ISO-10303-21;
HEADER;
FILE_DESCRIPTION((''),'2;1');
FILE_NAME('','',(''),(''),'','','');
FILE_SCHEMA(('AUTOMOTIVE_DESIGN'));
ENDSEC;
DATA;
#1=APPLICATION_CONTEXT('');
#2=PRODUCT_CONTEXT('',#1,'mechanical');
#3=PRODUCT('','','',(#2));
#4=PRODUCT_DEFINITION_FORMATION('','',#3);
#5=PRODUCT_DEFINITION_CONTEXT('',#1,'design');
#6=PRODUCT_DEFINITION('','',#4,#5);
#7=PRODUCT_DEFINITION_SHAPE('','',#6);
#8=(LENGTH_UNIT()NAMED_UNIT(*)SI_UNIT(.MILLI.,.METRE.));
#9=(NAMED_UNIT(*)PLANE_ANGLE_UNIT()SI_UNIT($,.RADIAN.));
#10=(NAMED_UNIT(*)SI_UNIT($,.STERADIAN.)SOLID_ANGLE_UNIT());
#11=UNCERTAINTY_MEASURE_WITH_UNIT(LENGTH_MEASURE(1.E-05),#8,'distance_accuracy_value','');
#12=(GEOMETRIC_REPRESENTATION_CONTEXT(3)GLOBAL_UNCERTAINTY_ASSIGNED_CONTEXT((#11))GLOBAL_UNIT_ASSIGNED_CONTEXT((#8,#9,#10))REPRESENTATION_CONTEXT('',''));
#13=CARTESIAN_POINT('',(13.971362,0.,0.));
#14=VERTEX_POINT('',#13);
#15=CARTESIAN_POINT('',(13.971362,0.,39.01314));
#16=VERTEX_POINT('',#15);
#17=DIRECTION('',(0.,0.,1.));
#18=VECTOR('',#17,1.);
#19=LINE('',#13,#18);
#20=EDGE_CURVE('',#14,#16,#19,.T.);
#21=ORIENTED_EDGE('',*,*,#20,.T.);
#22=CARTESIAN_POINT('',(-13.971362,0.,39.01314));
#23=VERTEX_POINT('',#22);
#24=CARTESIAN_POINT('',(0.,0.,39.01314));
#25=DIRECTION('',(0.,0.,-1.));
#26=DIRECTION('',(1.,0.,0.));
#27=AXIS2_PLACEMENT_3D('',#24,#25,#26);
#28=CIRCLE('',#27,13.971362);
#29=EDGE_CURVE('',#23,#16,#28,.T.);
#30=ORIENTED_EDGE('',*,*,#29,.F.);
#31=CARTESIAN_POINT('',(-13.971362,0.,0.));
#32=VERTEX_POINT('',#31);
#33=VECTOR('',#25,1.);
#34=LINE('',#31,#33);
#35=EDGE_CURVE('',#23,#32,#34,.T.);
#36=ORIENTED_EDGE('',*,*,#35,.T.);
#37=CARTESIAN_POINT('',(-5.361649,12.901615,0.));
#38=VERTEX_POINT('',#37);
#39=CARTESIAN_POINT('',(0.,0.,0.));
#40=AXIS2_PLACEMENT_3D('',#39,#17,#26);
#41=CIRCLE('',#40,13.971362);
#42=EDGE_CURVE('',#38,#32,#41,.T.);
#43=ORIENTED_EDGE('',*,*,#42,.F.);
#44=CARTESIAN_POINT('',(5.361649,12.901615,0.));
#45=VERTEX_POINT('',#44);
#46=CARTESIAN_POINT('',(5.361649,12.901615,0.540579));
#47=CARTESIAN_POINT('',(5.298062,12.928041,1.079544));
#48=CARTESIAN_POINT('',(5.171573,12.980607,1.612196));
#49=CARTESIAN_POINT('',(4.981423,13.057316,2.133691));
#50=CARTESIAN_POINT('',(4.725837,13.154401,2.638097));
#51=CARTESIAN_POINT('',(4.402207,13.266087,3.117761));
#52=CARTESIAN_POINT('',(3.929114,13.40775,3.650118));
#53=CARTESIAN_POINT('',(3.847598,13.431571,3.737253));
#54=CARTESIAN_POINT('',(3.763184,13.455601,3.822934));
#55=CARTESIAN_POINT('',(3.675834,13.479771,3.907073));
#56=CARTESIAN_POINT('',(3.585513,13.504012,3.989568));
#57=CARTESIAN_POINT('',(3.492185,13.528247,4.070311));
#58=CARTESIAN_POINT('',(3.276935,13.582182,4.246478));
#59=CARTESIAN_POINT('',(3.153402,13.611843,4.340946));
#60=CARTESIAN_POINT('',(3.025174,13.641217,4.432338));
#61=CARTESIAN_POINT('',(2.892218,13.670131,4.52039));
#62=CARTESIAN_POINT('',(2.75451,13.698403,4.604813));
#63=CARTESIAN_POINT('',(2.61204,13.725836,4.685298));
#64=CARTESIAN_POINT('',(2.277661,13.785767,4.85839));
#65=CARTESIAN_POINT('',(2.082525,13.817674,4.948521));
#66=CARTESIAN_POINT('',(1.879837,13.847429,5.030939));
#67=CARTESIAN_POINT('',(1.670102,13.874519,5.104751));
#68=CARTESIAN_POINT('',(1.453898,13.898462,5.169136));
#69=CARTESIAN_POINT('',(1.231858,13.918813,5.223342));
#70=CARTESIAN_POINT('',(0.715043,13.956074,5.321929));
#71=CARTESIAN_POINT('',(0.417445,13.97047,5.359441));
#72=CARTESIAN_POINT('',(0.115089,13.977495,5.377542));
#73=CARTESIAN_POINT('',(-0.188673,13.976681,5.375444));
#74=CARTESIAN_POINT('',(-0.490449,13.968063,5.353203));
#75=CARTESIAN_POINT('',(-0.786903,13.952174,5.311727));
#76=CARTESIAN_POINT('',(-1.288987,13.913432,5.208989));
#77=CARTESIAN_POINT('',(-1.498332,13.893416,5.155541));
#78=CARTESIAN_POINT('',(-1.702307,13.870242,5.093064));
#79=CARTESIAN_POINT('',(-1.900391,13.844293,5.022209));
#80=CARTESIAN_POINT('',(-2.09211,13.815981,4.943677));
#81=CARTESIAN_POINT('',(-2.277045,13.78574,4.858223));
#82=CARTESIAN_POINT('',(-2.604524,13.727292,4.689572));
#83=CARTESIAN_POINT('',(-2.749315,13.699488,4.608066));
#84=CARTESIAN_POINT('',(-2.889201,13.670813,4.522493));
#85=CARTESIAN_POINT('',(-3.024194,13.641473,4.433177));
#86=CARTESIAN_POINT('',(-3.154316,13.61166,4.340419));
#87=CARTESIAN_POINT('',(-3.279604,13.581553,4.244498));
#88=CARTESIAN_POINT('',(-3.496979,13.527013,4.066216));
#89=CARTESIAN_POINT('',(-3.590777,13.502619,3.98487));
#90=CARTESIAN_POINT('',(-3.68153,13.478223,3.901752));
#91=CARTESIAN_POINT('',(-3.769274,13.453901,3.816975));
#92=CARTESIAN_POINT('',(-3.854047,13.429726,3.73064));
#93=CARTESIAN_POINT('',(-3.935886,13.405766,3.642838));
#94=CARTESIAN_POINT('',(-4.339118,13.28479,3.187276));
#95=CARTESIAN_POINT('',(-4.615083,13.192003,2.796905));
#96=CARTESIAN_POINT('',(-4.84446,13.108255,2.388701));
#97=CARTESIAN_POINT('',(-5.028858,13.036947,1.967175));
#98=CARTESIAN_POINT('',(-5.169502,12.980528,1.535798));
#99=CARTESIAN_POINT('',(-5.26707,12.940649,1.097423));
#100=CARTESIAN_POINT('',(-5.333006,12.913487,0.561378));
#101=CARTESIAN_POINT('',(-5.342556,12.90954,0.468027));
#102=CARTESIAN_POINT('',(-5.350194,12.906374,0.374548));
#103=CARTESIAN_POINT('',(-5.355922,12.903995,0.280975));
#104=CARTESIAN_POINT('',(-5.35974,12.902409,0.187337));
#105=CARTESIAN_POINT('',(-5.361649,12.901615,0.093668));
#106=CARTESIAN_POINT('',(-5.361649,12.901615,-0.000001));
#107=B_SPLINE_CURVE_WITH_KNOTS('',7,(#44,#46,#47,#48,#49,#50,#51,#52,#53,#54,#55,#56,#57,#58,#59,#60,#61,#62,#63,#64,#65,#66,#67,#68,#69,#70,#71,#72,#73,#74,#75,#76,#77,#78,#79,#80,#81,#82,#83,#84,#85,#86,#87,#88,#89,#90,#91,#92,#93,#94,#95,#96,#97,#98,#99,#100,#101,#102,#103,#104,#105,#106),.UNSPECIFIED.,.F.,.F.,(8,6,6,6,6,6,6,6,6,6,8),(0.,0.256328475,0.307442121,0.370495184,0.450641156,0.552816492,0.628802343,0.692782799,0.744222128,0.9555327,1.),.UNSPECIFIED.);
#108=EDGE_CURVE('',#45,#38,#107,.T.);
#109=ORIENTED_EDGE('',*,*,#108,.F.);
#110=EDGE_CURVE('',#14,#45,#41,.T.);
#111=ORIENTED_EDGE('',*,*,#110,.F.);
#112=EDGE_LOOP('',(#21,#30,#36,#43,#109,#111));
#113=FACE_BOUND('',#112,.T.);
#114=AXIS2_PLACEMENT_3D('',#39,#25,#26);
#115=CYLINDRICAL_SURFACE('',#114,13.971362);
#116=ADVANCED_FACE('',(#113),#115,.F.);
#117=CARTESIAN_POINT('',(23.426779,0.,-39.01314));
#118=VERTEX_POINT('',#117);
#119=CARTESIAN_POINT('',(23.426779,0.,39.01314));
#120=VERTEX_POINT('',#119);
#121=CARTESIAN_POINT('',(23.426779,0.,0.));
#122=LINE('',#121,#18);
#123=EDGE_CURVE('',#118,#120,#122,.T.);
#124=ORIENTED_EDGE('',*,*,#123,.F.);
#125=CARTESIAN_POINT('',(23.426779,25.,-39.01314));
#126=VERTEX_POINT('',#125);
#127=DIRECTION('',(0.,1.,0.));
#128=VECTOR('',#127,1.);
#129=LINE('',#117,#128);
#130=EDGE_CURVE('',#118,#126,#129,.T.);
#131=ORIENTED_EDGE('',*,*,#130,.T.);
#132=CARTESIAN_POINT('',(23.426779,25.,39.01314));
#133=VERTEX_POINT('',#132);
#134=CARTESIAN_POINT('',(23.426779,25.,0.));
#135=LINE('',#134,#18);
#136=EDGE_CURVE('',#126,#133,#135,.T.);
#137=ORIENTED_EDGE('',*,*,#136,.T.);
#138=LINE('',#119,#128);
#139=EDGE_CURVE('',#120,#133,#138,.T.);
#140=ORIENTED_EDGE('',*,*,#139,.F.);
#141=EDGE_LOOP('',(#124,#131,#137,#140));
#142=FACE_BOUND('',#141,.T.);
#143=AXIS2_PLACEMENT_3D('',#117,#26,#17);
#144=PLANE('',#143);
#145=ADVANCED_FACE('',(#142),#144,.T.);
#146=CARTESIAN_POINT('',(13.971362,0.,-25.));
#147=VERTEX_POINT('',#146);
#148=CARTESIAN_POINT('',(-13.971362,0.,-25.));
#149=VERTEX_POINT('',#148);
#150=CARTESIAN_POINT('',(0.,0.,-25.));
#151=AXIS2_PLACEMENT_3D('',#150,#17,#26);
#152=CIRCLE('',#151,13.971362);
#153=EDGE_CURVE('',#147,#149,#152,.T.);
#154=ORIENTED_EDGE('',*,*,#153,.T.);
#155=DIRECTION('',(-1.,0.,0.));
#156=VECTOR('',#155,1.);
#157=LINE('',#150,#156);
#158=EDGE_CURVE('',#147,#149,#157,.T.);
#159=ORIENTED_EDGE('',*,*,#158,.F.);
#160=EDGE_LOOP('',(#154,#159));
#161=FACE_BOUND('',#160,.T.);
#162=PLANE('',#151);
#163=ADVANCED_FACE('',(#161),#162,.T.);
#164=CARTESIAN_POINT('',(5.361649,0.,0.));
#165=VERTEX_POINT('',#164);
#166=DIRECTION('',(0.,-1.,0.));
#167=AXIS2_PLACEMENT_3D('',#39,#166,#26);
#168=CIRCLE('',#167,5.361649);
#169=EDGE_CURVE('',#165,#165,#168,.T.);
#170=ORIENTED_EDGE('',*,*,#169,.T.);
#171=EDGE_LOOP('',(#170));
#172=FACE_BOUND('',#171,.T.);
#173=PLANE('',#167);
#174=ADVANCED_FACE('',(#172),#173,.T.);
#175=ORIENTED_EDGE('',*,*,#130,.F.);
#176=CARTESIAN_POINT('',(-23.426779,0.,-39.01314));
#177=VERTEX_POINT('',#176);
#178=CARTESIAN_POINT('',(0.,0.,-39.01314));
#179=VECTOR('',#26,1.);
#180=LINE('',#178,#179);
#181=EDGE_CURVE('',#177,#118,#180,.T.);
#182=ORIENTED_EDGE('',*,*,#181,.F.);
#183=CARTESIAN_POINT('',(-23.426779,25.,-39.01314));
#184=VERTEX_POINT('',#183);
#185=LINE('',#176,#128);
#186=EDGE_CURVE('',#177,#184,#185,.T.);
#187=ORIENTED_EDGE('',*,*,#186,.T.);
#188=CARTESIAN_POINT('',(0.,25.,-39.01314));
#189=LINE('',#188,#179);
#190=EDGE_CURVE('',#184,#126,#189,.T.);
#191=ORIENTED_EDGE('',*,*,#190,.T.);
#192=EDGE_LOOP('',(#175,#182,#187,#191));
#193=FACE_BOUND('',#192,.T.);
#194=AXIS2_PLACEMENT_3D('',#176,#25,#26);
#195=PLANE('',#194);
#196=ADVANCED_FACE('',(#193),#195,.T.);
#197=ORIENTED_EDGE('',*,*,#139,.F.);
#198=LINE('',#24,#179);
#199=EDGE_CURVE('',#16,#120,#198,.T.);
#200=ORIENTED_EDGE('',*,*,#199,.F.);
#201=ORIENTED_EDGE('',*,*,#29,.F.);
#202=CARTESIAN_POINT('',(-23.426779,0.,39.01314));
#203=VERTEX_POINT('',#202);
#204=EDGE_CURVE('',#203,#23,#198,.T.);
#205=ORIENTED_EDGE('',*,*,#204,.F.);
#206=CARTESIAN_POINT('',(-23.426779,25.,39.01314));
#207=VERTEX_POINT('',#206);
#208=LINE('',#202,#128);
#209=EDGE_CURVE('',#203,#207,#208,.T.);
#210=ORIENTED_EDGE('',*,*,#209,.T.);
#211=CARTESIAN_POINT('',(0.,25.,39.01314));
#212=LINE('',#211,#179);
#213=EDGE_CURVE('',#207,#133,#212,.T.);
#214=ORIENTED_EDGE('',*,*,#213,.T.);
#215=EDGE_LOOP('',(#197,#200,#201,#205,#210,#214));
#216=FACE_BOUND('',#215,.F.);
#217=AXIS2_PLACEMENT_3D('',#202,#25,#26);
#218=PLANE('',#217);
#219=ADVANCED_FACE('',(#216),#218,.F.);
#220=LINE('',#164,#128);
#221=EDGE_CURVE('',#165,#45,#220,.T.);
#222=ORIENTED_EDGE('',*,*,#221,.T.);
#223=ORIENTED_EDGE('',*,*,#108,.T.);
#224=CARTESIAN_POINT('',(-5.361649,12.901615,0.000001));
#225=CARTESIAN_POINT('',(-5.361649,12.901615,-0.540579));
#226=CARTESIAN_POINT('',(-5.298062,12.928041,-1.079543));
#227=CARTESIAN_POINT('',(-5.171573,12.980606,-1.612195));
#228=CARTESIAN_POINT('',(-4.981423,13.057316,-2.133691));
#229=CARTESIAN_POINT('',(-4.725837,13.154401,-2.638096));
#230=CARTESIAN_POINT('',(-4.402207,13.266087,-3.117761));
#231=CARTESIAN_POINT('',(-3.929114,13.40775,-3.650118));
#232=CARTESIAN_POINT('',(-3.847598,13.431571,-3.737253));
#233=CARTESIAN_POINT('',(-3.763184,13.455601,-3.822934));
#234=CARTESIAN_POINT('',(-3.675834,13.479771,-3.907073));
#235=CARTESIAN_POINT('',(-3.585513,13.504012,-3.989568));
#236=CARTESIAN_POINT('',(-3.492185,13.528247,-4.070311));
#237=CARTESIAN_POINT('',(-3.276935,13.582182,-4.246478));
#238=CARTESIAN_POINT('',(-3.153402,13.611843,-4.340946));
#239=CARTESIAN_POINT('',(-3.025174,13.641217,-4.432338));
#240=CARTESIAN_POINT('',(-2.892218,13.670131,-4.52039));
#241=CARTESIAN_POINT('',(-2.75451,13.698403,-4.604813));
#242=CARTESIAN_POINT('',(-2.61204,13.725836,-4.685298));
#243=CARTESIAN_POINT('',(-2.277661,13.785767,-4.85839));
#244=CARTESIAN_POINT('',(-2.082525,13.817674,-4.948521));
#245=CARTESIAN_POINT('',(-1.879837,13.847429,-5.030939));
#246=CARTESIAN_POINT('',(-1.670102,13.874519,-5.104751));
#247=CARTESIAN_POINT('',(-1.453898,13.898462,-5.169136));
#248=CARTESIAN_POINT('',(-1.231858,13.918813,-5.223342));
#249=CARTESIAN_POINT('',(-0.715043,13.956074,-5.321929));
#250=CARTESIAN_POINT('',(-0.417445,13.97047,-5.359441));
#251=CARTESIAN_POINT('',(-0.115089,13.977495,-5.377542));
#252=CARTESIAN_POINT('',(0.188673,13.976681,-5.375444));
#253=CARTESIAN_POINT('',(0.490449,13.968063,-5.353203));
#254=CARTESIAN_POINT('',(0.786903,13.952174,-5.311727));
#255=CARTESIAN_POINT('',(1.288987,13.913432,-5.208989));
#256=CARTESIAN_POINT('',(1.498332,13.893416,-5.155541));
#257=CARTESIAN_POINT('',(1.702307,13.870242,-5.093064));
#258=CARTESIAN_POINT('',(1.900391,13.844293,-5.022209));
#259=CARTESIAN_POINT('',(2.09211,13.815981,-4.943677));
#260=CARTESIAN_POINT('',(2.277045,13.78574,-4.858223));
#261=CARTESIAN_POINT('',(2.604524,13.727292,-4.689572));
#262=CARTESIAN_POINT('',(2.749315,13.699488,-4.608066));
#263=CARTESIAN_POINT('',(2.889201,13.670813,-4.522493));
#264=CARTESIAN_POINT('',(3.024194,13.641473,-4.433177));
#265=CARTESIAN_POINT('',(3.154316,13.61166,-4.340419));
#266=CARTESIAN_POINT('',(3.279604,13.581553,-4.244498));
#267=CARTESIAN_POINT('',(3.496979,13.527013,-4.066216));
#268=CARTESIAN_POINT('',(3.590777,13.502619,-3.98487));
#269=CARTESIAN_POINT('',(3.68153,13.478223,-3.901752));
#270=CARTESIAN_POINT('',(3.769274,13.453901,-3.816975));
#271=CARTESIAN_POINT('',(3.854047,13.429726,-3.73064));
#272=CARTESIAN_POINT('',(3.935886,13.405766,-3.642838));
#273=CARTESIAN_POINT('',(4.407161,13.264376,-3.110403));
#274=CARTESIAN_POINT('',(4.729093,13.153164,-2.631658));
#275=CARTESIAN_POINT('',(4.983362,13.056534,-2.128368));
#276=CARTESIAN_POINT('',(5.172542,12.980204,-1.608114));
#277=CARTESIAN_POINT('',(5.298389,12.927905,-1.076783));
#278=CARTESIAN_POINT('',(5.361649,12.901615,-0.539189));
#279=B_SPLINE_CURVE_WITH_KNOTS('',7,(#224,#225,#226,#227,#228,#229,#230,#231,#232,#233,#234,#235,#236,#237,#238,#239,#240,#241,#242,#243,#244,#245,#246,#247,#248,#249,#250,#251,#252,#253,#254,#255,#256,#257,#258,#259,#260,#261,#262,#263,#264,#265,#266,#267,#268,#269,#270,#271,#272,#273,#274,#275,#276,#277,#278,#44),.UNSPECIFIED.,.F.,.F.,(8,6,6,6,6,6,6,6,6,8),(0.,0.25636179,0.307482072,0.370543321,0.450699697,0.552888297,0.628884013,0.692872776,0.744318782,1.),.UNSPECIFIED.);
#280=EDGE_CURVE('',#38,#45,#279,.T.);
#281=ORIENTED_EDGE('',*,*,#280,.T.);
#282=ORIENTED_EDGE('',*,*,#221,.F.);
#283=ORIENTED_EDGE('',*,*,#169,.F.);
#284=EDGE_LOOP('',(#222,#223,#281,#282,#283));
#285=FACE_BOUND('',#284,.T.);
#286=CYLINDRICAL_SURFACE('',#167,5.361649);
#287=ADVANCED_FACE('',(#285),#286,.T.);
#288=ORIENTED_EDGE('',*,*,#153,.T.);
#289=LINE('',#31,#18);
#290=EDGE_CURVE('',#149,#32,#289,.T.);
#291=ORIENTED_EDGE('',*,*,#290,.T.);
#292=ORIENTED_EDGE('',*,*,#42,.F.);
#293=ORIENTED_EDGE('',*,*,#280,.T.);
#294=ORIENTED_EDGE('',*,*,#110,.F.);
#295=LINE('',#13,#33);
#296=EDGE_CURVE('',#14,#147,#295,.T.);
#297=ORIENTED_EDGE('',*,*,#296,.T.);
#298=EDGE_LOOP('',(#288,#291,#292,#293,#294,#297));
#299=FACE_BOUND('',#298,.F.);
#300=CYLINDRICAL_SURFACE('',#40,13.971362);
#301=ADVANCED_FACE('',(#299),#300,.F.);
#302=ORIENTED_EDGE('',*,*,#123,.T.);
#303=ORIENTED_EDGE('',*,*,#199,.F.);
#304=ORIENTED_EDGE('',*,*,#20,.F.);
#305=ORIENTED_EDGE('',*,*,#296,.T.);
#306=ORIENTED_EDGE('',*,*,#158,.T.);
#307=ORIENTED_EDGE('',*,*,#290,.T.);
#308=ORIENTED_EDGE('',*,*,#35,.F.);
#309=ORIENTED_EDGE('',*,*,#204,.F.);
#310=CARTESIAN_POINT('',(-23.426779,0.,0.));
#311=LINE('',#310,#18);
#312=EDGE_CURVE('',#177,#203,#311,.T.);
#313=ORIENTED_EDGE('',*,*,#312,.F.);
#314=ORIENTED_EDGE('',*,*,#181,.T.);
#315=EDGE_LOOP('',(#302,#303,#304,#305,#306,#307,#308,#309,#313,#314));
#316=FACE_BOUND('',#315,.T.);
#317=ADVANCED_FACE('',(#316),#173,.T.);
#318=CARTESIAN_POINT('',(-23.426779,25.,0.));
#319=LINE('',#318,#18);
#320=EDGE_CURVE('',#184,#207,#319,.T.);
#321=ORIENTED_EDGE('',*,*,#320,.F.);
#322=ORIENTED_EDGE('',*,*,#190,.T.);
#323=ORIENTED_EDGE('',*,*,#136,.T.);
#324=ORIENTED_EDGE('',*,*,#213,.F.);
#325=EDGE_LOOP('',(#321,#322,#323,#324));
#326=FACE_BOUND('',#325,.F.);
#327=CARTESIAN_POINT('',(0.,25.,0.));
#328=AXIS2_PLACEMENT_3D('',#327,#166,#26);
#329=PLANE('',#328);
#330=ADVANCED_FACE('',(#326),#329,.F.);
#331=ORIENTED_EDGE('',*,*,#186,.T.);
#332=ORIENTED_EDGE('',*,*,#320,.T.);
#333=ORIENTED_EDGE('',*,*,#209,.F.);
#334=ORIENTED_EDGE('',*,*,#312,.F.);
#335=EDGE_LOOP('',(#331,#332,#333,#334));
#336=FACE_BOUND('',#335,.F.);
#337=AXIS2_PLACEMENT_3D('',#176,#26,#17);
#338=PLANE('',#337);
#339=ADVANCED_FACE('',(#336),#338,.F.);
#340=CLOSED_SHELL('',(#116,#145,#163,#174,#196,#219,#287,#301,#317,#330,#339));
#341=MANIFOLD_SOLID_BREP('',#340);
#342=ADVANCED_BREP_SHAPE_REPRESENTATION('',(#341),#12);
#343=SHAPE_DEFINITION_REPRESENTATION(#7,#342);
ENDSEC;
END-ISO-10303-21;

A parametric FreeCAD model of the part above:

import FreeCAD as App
import Part
import Sketcher

V = App.Vector


def add_polygon(sketch, points):
    """Adds a closed chain of lines whose ends are joined by coincident constraints."""
    first, n = sketch.GeometryCount, len(points)
    for a, b in zip(points, points[1:] + points[:1]):
        sketch.addGeometry(Part.LineSegment(App.Vector(*a, 0), App.Vector(*b, 0)), False)
    for i in range(n):
        sketch.addConstraint(Sketcher.Constraint("Coincident", first + i, 2, first + (i + 1) % n, 1))

doc = App.newDocument("Part")
body = doc.addObject("PartDesign::Body", "Body")

# Sketch on XZ plane
sketch1 = doc.addObject("Sketcher::SketchObject", "Sketch")
body.addObject(sketch1)
sketch1.AttachmentSupport = (doc.XZ_Plane, [""])
sketch1.MapMode = "FlatFace"
add_polygon(sketch1, [(-23.426779, 39.01314), (-23.426779, -39.01314), (23.426779, -39.01314), (23.426779, 39.01314)])  # lines 0-3
sketch1.addConstraint(Sketcher.Constraint("Vertical", 0))
sketch1.addConstraint(Sketcher.Constraint("Horizontal", 1))
sketch1.addConstraint(Sketcher.Constraint("Vertical", 2))
sketch1.addConstraint(Sketcher.Constraint("Horizontal", 3))
sketch1.addConstraint(Sketcher.Constraint("Symmetric", 0, 2, 2, 2, -1, 1))
sketch1.addConstraint(Sketcher.Constraint("DistanceY", 0, 2, 0, 1, 78.02628))
sketch1.addConstraint(Sketcher.Constraint("DistanceX", 1, 1, 1, 2, 46.853558))
pad1 = doc.addObject("PartDesign::Pad", "Pad")
body.addObject(pad1)
pad1.Profile = sketch1
pad1.Length = 25
pad1.Reversed = True

# Sketch on XY plane
sketch2 = doc.addObject("Sketcher::SketchObject", "Sketch001")
body.addObject(sketch2)
sketch2.AttachmentSupport = (doc.XY_Plane, [""])
sketch2.MapMode = "FlatFace"
sketch2.addGeometry(Part.Circle(V(0, 0, 0), V(0, 0, 1), 13.971362), False)
sketch2.addConstraint(Sketcher.Constraint("Coincident", 0, 3, -1, 1))
sketch2.addConstraint(Sketcher.Constraint("Diameter", 0, 27.942724))
pocket1 = doc.addObject("PartDesign::Pocket", "Pocket")
body.addObject(pocket1)
pocket1.Profile = sketch2
pocket1.Type = "TwoLengths"
pocket1.Length = 42.8
pocket1.Length2 = 25
pocket1.Reversed = True

# Sketch on XZ plane
sketch3 = doc.addObject("Sketcher::SketchObject", "Sketch002")
body.addObject(sketch3)
sketch3.AttachmentSupport = (doc.XZ_Plane, [""])
sketch3.MapMode = "FlatFace"
sketch3.addGeometry(Part.Circle(V(0, 0, 0), V(0, 0, 1), 5.361649), False)
sketch3.addConstraint(Sketcher.Constraint("Coincident", 0, 3, -1, 1))
sketch3.addConstraint(Sketcher.Constraint("Diameter", 0, 10.723298))
pad2 = doc.addObject("PartDesign::Pad", "Pad001")
body.addObject(pad2)
pad2.Profile = sketch3
pad2.Length = 22.4
pad2.Reversed = True

doc.recompute()
